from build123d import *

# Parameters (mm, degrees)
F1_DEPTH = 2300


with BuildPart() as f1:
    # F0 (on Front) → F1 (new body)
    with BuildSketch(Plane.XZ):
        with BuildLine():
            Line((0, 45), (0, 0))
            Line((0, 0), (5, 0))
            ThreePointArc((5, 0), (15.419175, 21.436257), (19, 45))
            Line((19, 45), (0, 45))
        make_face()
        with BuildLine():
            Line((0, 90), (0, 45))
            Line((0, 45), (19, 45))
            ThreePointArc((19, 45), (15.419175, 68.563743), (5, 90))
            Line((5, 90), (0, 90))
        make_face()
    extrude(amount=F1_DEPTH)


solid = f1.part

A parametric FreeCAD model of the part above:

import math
import FreeCAD as App
import Part
import Sketcher
from FreeCAD import Vector
Q = App.Units.Quantity

doc = App.newDocument("Part")
body = doc.addObject("PartDesign::Body", "Body")

sketch1 = doc.addObject("Sketcher::SketchObject", "Sketch")
body.addObject(sketch1)
sketch1.AttachmentSupport = (doc.XZ_Plane, [""])
sketch1.MapMode = "FlatFace"
sketch1.addGeometry([
    Part.LineSegment(Vector(0, 0, 0), Vector(5, 0, 0)),
    Part.ArcOfCircle(Part.Circle(Vector(-60.321431, 45.000001, 0), Vector(0, 0, 1), 79.321431), math.radians(-34.562996), math.radians(-0.000001)),
    Part.ArcOfCircle(Part.Circle(Vector(-60.321431, 44.999999, 0), Vector(0, 0, 1), 79.321431), math.radians(0.000001), math.radians(34.562996)),
    Part.LineSegment(Vector(5, 90, 0), Vector(0, 90, 0)),
    Part.LineSegment(Vector(0, 90, 0), Vector(0, 0, 0)),
], False)
sketch1.addConstraint([
    Sketcher.Constraint("Coincident", 0, 2, 1, 1),
    Sketcher.Constraint("Tangent", 1, 2, 2, 1),
    Sketcher.Constraint("Coincident", 2, 2, 3, 1),
    Sketcher.Constraint("Coincident", 3, 2, 4, 1),
    Sketcher.Constraint("Coincident", 4, 2, 0, 1),
    Sketcher.Constraint("Horizontal", 0),
    Sketcher.Constraint("Horizontal", 3),
    Sketcher.Constraint("Vertical", 4),
    Sketcher.Constraint("Coincident", 4, 2, -1, 1),
    Sketcher.Constraint("Equal", 1, 2),
    Sketcher.Constraint("Horizontal", 2, 3, 1, 2),
    Sketcher.Constraint("Vertical", 0, 2, 2, 2),
    Sketcher.Constraint("DistanceX", 0, 1, 0, 2, Q("5 mm")),
    Sketcher.Constraint("DistanceY", 4, 2, 4, 1, Q("90 mm")),
    Sketcher.Constraint("DistanceX", -1, 1, 1, 2, Q("19 mm")),
])
pad1 = doc.addObject("PartDesign::Pad", "Pad")
body.addObject(pad1)
pad1.Profile = sketch1
pad1.Length = 2300

doc.recompute()
